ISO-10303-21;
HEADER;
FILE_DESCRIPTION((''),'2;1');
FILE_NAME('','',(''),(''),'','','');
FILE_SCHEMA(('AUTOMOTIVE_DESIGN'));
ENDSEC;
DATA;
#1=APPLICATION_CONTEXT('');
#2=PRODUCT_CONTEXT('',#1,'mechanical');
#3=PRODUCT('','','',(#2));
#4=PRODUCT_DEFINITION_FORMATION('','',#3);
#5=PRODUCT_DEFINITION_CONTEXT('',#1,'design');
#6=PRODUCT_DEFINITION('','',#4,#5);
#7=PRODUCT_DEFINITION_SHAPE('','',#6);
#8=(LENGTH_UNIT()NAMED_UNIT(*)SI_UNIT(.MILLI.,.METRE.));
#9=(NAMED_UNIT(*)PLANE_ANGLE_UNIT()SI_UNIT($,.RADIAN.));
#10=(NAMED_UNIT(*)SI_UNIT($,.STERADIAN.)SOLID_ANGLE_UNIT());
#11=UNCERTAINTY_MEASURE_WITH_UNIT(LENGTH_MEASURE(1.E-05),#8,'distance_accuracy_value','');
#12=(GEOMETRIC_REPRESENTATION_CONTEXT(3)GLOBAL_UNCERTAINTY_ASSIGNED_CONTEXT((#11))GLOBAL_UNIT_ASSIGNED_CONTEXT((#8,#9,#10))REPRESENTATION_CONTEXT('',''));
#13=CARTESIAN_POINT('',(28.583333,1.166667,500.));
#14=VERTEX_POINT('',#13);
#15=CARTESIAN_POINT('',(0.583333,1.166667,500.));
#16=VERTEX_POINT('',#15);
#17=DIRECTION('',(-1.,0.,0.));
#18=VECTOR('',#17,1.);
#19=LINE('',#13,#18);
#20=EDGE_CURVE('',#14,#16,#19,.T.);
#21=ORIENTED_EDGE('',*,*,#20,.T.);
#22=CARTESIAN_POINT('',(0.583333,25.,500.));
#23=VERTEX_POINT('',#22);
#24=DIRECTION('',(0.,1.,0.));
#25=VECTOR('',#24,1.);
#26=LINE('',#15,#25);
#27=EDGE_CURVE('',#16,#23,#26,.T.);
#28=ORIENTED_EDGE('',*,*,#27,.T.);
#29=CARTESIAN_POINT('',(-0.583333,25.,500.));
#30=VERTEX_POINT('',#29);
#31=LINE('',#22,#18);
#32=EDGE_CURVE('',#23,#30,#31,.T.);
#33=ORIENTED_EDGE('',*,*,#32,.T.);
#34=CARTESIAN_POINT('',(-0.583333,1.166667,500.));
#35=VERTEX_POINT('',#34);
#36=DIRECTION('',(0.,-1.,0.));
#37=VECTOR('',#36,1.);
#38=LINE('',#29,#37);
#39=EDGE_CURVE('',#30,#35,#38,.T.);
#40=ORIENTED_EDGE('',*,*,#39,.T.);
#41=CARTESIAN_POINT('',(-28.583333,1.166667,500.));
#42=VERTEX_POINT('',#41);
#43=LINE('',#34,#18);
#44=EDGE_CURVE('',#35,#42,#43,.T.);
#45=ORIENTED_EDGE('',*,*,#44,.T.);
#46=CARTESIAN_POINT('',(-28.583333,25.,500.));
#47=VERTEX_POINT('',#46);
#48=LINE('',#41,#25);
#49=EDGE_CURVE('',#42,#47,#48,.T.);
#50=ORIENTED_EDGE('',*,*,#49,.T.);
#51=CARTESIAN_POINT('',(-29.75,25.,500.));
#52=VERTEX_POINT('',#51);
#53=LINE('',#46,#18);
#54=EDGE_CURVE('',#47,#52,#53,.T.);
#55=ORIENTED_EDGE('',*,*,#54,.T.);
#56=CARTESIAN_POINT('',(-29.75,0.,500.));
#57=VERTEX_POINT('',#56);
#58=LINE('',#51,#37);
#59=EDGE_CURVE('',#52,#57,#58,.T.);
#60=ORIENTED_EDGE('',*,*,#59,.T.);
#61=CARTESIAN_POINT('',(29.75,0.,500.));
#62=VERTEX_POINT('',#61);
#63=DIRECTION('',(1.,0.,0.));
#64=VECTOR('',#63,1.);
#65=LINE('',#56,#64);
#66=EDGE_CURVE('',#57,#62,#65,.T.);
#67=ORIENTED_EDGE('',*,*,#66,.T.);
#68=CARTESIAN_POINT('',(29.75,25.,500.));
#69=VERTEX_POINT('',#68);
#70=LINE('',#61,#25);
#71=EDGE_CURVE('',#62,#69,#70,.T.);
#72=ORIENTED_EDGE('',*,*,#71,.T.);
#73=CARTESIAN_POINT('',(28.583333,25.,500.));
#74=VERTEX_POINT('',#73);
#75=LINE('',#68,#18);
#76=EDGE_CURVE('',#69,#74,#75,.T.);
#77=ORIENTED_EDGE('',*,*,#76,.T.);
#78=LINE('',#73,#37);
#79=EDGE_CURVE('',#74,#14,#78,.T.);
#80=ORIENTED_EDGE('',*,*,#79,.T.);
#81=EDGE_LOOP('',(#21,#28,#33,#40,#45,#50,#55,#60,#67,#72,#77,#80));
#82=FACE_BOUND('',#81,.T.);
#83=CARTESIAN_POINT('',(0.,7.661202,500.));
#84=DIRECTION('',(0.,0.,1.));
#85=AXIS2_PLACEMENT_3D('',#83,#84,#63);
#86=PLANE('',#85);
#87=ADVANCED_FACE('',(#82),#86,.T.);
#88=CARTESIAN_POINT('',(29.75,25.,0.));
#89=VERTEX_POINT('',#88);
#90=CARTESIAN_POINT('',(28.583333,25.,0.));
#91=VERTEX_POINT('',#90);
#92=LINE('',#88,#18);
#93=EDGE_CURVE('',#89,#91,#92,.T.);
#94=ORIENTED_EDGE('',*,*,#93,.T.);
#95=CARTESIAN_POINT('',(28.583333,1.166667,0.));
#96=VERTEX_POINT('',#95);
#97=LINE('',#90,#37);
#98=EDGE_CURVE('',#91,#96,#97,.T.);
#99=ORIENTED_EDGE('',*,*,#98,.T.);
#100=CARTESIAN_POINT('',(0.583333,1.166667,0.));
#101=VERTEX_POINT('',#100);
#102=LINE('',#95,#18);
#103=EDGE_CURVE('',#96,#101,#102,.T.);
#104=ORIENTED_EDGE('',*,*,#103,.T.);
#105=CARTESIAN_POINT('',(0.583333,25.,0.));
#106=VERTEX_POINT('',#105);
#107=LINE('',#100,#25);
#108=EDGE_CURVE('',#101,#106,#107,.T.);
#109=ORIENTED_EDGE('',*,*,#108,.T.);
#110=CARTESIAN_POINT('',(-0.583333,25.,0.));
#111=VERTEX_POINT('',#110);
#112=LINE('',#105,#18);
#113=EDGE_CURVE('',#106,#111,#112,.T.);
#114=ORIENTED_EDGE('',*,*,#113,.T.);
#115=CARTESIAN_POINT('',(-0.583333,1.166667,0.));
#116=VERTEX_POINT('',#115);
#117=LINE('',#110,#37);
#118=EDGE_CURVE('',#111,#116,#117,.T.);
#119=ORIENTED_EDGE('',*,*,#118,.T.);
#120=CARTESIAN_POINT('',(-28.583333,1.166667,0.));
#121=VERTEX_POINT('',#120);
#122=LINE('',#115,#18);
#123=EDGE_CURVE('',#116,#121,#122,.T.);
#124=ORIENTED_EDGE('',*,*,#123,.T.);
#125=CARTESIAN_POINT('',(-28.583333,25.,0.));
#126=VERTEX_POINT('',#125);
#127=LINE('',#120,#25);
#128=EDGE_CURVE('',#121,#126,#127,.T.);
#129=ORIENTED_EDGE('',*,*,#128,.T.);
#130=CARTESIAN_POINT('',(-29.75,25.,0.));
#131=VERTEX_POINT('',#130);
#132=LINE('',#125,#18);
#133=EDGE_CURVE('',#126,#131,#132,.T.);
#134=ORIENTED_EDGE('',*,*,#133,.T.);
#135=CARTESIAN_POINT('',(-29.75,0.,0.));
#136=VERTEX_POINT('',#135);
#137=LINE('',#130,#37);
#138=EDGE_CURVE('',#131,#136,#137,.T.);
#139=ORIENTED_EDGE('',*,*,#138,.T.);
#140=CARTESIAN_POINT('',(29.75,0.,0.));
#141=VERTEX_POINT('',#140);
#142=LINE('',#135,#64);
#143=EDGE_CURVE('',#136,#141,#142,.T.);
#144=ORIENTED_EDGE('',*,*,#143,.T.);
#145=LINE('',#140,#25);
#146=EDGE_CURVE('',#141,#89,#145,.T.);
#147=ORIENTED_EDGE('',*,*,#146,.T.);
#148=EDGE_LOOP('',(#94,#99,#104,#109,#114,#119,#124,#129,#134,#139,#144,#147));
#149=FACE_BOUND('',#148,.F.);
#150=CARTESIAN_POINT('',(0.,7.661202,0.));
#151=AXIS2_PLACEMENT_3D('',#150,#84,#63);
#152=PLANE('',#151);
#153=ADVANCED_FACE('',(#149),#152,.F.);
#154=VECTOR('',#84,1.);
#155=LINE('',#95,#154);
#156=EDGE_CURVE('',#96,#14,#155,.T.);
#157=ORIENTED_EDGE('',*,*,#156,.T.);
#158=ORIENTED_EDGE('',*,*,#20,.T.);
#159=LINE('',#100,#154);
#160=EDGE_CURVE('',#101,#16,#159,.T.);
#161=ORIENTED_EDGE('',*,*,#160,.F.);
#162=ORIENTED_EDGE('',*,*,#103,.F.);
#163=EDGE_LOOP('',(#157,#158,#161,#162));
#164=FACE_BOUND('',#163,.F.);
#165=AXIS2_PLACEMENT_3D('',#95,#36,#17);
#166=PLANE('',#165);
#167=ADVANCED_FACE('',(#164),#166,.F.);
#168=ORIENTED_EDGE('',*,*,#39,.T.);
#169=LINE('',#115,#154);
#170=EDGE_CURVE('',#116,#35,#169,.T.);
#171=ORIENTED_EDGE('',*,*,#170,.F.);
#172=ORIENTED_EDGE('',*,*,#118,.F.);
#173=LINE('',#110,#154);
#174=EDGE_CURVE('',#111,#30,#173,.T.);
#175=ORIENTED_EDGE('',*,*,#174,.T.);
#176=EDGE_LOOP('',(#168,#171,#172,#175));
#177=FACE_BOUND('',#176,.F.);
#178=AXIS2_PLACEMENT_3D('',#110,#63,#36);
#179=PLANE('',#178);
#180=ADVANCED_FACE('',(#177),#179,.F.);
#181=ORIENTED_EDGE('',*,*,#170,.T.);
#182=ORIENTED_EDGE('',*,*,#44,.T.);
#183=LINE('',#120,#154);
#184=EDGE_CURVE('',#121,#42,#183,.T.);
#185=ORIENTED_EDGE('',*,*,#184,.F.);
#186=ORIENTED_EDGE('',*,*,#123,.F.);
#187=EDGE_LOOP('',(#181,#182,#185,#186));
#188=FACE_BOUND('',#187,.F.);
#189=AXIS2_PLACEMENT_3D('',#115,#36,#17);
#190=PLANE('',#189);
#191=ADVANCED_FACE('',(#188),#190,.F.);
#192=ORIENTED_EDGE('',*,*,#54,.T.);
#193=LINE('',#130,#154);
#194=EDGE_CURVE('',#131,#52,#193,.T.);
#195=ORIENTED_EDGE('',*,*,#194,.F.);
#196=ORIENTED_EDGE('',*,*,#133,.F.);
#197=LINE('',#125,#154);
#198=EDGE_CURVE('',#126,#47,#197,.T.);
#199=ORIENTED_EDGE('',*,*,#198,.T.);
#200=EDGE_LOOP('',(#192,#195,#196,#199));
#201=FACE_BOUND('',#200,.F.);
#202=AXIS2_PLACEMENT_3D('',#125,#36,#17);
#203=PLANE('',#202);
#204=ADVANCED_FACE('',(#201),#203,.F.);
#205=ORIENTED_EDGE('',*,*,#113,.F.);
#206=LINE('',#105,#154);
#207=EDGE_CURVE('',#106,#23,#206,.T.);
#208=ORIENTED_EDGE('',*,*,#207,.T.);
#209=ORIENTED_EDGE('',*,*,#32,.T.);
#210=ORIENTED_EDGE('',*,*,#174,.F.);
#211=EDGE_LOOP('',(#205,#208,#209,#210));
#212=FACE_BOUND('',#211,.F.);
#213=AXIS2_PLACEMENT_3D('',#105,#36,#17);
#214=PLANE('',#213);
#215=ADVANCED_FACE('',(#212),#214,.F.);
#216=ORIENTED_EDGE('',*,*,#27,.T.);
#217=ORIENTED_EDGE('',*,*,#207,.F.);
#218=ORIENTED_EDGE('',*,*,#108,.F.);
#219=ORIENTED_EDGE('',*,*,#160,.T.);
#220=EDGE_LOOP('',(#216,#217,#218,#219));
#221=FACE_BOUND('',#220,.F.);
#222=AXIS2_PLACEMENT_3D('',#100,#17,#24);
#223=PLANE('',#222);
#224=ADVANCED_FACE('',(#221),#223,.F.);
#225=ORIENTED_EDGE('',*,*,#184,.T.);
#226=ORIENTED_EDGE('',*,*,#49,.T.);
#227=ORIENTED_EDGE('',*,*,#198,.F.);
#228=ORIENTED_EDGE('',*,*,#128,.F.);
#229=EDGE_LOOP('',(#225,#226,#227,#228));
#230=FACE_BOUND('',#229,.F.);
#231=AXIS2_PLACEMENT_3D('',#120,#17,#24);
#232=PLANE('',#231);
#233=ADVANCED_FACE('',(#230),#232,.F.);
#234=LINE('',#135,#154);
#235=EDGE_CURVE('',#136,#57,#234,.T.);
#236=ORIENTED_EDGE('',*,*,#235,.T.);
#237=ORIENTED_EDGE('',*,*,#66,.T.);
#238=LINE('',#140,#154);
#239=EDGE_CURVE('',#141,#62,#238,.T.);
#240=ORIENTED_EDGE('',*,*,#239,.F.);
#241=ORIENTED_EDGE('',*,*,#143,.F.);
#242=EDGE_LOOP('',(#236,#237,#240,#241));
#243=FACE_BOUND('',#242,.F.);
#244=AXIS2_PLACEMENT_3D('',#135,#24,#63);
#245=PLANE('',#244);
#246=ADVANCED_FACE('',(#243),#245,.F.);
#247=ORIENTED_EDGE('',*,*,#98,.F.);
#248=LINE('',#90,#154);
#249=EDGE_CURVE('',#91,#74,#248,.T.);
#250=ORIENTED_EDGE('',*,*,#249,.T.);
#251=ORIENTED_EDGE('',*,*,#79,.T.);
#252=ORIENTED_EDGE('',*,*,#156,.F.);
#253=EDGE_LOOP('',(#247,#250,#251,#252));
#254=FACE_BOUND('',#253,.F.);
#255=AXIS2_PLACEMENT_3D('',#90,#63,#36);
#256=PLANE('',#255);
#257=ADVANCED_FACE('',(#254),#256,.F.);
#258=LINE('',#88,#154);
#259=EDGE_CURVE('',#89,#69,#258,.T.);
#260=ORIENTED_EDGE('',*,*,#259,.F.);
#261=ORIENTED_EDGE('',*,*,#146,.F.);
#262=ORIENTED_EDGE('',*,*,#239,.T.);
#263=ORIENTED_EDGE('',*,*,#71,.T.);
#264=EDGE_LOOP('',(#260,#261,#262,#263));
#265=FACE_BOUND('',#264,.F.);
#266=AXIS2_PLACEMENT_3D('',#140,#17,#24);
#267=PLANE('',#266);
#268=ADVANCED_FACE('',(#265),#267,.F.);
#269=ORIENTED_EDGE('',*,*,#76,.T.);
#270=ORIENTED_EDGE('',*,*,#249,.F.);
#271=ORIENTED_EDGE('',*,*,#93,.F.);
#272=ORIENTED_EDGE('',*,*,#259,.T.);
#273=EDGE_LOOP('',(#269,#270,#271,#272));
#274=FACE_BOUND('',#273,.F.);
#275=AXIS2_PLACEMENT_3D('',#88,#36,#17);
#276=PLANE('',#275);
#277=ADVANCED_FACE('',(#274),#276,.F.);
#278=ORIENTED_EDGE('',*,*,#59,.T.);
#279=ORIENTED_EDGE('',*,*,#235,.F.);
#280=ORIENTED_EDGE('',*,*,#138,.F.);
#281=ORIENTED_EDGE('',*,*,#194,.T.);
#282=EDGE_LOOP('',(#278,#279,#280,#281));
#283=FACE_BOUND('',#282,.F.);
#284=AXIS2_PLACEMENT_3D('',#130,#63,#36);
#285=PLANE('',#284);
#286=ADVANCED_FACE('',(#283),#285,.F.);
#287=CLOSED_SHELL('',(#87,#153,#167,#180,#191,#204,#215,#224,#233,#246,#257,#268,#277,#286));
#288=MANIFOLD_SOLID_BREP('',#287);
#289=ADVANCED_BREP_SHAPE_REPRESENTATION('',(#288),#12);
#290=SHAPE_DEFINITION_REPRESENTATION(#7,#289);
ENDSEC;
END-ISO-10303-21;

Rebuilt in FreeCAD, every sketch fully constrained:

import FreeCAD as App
import Part
import Sketcher
Q = App.Units.Quantity

doc = App.newDocument("Part")
body = doc.addObject("PartDesign::Body", "Body")

# Sketch on XY plane
sketch1 = body.newObject("Sketcher::SketchObject", "Sketch")
sketch1.AttachmentSupport = (doc.getObject("XY_Plane"), [""])
sketch1.MapMode = "FlatFace"
sketch1.addGeometry([
    Part.LineSegment(App.Vector(-29.8, 25, 0), App.Vector(-29.8, 0, 0)),  # 0
    Part.LineSegment(App.Vector(-29.8, 0, 0), App.Vector(29.8, 0, 0)),  # 1
    Part.LineSegment(App.Vector(29.8, 0, 0), App.Vector(29.8, 25, 0)),  # 2
    Part.LineSegment(App.Vector(29.8, 25, 0), App.Vector(28.6, 25, 0)),  # 3
    Part.LineSegment(App.Vector(28.6, 25, 0), App.Vector(28.6, 1.2, 0)),  # 4
    Part.LineSegment(App.Vector(28.6, 1.2, 0), App.Vector(0.6, 1.2, 0)),  # 5
    Part.LineSegment(App.Vector(0.6, 1.2, 0), App.Vector(0.6, 25, 0)),  # 6
    Part.LineSegment(App.Vector(0.6, 25, 0), App.Vector(-0.6, 25, 0)),  # 7
    Part.LineSegment(App.Vector(-0.6, 25, 0), App.Vector(-0.6, 1.2, 0)),  # 8
    Part.LineSegment(App.Vector(-0.6, 1.2, 0), App.Vector(-28.6, 1.2, 0)),  # 9
    Part.LineSegment(App.Vector(-28.6, 1.2, 0), App.Vector(-28.6, 25, 0)),  # 10
    Part.LineSegment(App.Vector(-28.6, 25, 0), App.Vector(-29.8, 25, 0)),  # 11
], False)
sketch1.addConstraint([
    Sketcher.Constraint("Coincident", 0, 2, 1, 1),
    Sketcher.Constraint("Coincident", 1, 2, 2, 1),
    Sketcher.Constraint("Coincident", 2, 2, 3, 1),
    Sketcher.Constraint("Coincident", 3, 2, 4, 1),
    Sketcher.Constraint("Coincident", 4, 2, 5, 1),
    Sketcher.Constraint("Coincident", 5, 2, 6, 1),
    Sketcher.Constraint("Coincident", 6, 2, 7, 1),
    Sketcher.Constraint("Coincident", 7, 2, 8, 1),
    Sketcher.Constraint("Coincident", 8, 2, 9, 1),
    Sketcher.Constraint("Coincident", 9, 2, 10, 1),
    Sketcher.Constraint("Coincident", 10, 2, 11, 1),
    Sketcher.Constraint("Coincident", 11, 2, 0, 1),
    Sketcher.Constraint("Vertical", 0),
    Sketcher.Constraint("Horizontal", 1),
    Sketcher.Constraint("Vertical", 2),
    Sketcher.Constraint("Horizontal", 3),
    Sketcher.Constraint("Vertical", 4),
    Sketcher.Constraint("Horizontal", 5),
    Sketcher.Constraint("Vertical", 6),
    Sketcher.Constraint("Horizontal", 7),
    Sketcher.Constraint("Vertical", 8),
    Sketcher.Constraint("Horizontal", 9),
    Sketcher.Constraint("Vertical", 10),
    Sketcher.Constraint("Horizontal", 11),
    Sketcher.Constraint("Symmetric", 0, 2, 1, 2, -1, 1),
    Sketcher.Constraint("Symmetric", 5, 2, 8, 2, -2),
    Sketcher.Constraint("Symmetric", 3, 2, 10, 2, -2),
    Sketcher.Constraint("Horizontal", 3, 2, 6, 2),
    Sketcher.Constraint("Equal", 3, 7),
    Sketcher.Constraint("DistanceX", 5, 2, 5, 1, Q("28 mm")),
    Sketcher.Constraint("DistanceY", 0, 2, 0, 1, Q("25 mm")),
    Sketcher.Constraint("DistanceX", 1, 1, 1, 2, Q("59.5 mm")),
    Sketcher.Constraint("DistanceY", 4, 2, 4, 1, Q("23.833333 mm")),
])
pad1 = body.newObject("PartDesign::Pad", "Pad")
pad1.Profile = sketch1
pad1.Length = 500

doc.recompute()
